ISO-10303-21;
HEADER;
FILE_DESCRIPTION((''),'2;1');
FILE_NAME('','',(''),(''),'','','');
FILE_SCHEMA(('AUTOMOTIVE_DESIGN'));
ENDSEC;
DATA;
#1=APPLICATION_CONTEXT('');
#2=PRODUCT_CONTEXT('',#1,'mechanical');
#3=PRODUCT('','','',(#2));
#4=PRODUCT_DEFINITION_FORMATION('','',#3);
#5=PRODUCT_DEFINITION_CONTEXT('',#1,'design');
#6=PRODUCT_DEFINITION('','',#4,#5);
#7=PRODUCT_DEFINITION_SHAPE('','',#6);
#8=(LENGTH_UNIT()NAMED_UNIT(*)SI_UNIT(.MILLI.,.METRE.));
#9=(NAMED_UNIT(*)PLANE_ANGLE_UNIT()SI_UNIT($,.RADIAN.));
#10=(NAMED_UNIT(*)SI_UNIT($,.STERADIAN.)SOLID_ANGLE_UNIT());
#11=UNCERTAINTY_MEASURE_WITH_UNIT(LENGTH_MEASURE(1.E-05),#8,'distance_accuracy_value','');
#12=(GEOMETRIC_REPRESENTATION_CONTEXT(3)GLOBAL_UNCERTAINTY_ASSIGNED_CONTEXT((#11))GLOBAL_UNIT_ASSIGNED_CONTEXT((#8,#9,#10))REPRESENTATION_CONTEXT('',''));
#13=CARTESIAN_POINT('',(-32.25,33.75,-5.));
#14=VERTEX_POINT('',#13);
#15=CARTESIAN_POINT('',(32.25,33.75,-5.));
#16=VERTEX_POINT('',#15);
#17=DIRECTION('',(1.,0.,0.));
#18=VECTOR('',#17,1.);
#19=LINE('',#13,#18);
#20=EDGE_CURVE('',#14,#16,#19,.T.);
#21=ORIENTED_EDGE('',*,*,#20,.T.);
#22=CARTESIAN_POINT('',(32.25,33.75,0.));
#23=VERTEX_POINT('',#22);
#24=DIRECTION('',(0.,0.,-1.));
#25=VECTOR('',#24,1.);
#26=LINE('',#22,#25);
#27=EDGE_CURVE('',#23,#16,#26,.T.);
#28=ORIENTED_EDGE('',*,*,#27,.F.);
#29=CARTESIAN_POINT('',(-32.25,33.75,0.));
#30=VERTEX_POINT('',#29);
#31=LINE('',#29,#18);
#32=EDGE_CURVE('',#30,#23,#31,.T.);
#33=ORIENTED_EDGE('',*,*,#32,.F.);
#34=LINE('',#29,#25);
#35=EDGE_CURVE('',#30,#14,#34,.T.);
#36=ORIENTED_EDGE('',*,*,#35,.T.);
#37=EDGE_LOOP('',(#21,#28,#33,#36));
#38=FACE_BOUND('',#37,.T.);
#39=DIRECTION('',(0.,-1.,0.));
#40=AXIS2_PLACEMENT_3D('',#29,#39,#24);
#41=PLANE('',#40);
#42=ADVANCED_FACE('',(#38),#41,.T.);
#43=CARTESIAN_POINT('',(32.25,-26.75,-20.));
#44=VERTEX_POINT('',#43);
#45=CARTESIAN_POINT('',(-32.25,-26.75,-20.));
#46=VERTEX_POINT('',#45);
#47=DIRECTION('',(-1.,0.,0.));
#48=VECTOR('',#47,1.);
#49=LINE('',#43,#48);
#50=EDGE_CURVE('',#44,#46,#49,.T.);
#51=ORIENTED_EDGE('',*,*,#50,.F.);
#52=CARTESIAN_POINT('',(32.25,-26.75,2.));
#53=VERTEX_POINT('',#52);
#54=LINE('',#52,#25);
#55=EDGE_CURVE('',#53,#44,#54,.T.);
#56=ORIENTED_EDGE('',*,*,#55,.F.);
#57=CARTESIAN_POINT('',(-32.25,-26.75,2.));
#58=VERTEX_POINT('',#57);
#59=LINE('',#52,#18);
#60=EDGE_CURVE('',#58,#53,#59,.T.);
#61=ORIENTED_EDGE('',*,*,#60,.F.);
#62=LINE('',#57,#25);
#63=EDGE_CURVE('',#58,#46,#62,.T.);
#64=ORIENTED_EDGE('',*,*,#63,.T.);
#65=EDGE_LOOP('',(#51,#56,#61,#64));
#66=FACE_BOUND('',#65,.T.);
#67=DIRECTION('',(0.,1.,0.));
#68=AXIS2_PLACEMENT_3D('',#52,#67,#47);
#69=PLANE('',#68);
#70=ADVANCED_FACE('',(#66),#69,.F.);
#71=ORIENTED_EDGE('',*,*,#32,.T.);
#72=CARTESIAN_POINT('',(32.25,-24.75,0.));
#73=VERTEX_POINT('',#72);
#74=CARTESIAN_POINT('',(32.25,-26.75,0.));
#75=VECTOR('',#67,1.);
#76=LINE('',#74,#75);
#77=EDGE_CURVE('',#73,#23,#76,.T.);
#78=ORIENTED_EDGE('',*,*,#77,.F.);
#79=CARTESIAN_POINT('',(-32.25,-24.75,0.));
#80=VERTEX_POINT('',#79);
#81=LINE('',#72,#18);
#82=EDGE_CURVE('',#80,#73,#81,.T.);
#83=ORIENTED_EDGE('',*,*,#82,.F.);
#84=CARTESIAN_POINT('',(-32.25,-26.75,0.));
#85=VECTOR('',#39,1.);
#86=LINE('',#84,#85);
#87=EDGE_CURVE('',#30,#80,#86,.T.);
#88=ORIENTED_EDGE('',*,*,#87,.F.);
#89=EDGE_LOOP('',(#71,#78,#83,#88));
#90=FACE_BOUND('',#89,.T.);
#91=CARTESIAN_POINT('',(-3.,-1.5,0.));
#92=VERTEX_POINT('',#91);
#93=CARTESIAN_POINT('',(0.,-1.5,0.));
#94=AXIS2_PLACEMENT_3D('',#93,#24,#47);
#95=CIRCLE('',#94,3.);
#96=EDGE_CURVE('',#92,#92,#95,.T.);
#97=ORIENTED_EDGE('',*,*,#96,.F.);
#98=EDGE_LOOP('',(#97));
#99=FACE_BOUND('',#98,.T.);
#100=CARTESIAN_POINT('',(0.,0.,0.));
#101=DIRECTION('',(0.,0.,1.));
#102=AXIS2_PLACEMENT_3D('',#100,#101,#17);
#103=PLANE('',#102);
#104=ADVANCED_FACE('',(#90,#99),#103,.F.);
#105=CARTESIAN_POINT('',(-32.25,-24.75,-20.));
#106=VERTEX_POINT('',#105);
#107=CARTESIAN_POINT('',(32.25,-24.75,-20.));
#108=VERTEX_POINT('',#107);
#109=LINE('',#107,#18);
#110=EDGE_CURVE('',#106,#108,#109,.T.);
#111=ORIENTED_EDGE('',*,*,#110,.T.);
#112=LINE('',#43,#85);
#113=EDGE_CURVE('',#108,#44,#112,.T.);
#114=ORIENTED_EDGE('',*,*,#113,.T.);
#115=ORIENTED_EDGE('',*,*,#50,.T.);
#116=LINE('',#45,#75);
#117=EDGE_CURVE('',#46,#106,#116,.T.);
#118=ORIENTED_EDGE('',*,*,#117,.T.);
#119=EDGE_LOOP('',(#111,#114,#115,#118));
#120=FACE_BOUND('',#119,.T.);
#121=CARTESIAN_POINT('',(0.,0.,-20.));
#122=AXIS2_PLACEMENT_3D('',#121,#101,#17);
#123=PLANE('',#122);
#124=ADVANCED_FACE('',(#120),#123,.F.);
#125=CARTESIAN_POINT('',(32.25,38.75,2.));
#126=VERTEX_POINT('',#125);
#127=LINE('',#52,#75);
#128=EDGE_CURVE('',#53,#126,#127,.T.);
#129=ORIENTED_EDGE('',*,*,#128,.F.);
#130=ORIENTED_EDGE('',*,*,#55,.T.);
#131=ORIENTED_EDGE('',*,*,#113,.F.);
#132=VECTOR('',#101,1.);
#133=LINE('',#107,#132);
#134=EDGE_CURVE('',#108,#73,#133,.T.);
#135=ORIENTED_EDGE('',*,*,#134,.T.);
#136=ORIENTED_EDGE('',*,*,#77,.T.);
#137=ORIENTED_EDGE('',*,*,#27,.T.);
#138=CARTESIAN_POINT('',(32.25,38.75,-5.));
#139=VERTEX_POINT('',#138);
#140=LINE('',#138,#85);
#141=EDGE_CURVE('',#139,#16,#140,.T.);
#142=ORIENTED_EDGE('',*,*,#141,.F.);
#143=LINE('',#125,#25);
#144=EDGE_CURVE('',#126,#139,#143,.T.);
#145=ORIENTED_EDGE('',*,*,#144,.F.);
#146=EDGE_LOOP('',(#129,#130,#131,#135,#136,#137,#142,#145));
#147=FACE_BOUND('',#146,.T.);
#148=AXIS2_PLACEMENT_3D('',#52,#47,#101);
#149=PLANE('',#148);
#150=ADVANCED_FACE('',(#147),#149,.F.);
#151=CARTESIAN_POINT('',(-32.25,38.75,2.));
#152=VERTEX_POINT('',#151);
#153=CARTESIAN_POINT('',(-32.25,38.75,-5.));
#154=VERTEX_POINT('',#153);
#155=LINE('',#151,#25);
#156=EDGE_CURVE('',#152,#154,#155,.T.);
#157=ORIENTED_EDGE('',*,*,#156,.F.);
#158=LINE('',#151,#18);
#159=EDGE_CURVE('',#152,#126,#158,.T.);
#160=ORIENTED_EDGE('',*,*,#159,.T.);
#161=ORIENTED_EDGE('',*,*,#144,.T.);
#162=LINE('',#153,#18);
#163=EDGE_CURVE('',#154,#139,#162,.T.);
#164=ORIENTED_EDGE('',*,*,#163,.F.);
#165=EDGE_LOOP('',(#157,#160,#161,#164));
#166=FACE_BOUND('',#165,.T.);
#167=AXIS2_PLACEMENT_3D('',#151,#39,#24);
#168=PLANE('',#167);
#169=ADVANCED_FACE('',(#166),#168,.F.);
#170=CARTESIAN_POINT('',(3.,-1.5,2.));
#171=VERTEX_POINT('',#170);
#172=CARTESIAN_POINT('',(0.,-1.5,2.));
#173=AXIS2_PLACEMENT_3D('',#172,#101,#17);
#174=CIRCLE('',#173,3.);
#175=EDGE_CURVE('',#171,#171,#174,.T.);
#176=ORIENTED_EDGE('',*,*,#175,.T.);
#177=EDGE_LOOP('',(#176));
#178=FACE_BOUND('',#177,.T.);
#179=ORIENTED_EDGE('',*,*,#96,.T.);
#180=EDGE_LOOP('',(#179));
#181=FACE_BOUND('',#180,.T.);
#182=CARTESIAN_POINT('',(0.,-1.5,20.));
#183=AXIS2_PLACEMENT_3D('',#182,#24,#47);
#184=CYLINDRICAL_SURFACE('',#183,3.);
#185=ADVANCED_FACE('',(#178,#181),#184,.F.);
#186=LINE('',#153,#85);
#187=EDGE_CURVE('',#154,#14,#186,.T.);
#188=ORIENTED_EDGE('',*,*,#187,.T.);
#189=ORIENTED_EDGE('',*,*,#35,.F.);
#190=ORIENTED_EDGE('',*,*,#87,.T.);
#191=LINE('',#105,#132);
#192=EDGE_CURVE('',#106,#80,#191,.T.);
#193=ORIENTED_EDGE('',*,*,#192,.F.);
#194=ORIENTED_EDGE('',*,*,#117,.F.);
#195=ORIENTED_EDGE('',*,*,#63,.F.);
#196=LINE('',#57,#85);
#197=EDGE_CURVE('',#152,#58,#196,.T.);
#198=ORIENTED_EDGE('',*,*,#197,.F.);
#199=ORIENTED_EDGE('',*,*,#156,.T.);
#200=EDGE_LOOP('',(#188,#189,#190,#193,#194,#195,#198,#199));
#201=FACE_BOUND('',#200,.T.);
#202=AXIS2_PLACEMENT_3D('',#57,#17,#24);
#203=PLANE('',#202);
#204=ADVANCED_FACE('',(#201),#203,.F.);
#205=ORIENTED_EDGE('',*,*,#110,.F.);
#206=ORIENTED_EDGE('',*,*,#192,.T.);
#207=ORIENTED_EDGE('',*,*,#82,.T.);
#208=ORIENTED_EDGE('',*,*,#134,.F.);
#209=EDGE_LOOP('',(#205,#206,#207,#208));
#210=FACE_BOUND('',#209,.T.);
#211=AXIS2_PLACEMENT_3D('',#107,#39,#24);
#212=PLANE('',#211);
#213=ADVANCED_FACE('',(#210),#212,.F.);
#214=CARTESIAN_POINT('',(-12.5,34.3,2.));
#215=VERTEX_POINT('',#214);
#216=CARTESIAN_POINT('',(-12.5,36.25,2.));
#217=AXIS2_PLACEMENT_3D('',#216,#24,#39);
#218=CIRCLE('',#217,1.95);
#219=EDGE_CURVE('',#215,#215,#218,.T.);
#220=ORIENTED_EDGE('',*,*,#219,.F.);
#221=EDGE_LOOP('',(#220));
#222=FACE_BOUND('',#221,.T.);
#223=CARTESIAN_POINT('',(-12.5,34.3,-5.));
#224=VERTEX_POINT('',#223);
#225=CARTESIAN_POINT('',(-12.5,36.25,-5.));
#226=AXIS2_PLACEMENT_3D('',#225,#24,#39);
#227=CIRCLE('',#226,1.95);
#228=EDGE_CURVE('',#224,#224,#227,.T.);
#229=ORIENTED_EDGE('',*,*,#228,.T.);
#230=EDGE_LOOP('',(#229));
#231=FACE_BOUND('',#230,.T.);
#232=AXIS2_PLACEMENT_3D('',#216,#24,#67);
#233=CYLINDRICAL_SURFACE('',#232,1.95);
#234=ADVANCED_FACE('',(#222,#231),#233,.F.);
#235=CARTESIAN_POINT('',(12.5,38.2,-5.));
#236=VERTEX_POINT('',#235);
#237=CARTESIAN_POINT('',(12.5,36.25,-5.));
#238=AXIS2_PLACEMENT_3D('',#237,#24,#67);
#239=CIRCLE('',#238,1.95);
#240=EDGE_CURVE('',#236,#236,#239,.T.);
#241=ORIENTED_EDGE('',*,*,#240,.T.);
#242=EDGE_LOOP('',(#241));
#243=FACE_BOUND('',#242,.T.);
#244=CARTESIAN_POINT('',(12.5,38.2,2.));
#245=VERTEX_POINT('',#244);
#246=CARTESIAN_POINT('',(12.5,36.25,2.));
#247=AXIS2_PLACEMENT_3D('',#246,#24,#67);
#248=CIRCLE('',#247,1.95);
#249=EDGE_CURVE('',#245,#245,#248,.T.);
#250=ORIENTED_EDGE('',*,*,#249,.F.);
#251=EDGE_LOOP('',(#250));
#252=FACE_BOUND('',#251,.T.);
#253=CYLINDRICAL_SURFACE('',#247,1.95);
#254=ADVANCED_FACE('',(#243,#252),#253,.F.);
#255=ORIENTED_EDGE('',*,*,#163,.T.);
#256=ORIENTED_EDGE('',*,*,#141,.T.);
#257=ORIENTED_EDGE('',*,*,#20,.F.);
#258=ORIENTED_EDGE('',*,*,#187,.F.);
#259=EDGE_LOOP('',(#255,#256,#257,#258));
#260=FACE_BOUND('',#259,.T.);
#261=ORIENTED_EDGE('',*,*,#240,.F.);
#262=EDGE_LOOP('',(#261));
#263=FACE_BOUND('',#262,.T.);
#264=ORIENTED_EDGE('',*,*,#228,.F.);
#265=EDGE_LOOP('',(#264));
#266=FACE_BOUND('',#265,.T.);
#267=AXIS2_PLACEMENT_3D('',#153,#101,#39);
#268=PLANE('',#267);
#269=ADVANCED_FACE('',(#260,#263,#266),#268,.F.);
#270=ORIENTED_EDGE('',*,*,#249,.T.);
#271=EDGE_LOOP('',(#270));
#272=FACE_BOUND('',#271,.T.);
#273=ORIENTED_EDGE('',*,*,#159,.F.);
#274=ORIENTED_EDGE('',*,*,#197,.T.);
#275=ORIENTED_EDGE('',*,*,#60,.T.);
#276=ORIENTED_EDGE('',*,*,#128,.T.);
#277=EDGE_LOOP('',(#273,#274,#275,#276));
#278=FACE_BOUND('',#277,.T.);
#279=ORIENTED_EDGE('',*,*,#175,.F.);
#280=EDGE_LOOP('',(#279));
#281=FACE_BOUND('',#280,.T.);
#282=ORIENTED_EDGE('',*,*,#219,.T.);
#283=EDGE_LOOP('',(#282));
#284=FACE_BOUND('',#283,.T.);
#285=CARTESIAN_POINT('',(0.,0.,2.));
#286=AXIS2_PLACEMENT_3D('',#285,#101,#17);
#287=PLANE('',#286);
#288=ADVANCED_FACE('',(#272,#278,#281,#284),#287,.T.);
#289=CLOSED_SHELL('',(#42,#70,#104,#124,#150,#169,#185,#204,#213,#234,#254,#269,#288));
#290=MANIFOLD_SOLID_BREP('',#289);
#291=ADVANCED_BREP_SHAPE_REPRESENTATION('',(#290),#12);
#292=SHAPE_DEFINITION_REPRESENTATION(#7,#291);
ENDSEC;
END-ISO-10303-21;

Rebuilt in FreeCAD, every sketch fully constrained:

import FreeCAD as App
import Part
import Sketcher
from FreeCAD import Vector
Q = App.Units.Quantity


def add_polygon(sketch, points):
    """Adds a closed chain of lines whose ends are joined by coincident constraints."""
    first, n = sketch.GeometryCount, len(points)
    for a, b in zip(points, points[1:] + points[:1]):
        sketch.addGeometry(Part.LineSegment(App.Vector(*a, 0), App.Vector(*b, 0)), False)
    for i in range(n):
        sketch.addConstraint(Sketcher.Constraint("Coincident", first + i, 2, first + (i + 1) % n, 1))

doc = App.newDocument("Part")
params = doc.addObject("Spreadsheet::Sheet", "Params")
for row, (alias, value) in enumerate([
    ("sketch1_width", "64.5 mm"),
    ("sketch1_height", "53.5 mm"),
    ("pad1_length", "2 mm"),
    ("sketch2_height", "5 mm"),
    ("sketch2_width", "64.5 mm"),
    ("pad2_length", "5 mm"),
    ("sketch3_height", "2 mm"),
    ("sketch3_width", "64.5 mm"),
    ("pad3_length", "20 mm"),
    ("sketch4_diameter", "6 mm"),
    ("pocket1_length", "20 mm"),
    ("sketch5_height", "5 mm"),
    ("sketch6_width", "10 mm"),
    ("sketch6_width2", "5 mm"),
    ("sketch6_height", "2 mm"),
    ("pad4_length", "64.5 mm"),
    ("sketch7_diameter", "3.9 mm"),
], start=1):
    params.set(f"A{row}", alias)
    params.set(f"B{row}", "=" + value)
    params.setAlias(f"B{row}", alias)

body = doc.addObject("PartDesign::Body", "Body")

# Sketch on XY plane
sketch1 = body.newObject("Sketcher::SketchObject", "Sketch")
sketch1.AttachmentSupport = (doc.getObject("XY_Plane"), [""])
sketch1.MapMode = "FlatFace"
add_polygon(sketch1, [(-32, 27), (-32, -27), (32, -27), (32, 27)])  # lines 0-3
sketch1.addConstraint([
    Sketcher.Constraint("Vertical", 0),
    Sketcher.Constraint("Horizontal", 1),
    Sketcher.Constraint("Vertical", 2),
    Sketcher.Constraint("Horizontal", 3),
    Sketcher.Constraint("Symmetric", 0, 2, 2, 2, -1, 1),
    Sketcher.Constraint("DistanceX", 1, 1, 1, 2, Q("64.5 mm")),
    Sketcher.Constraint("DistanceY", 0, 2, 0, 1, Q("53.5 mm")),
])
sketch1.setExpression("Constraints[9]", "Params.sketch1_width")
sketch1.setExpression("Constraints[10]", "Params.sketch1_height")
pad1 = body.newObject("PartDesign::Pad", "Pad")
pad1.Profile = sketch1
pad1.setExpression("Length", "Params.pad1_length")

# Sketch on XY plane
sketch2 = body.newObject("Sketcher::SketchObject", "Sketch001")
sketch2.AttachmentSupport = (doc.getObject("XY_Plane"), [""])
sketch2.MapMode = "FlatFace"
add_polygon(sketch2, [(32, 27), (32, 22), (-32, 22), (-32, 27)])  # lines 0-3
sketch2.addConstraint([
    Sketcher.Constraint("Vertical", 0),
    Sketcher.Constraint("Horizontal", 1),
    Sketcher.Constraint("Vertical", 2),
    Sketcher.Constraint("Horizontal", 3),
    Sketcher.Constraint("DistanceY", 0, 2, 0, 1, Q("5 mm")),
    Sketcher.Constraint("DistanceX", 1, 2, 1, 1, Q("64.5 mm")),
    Sketcher.Constraint("DistanceX", -1, 1, 0, 2, Q("32.25 mm")),
    Sketcher.Constraint("DistanceY", -1, 1, 0, 2, Q("21.75 mm")),
])
sketch2.setExpression("Constraints[8]", "Params.sketch2_height")
sketch2.setExpression("Constraints[9]", "Params.sketch2_width")
pad2 = body.newObject("PartDesign::Pad", "Pad001")
pad2.Profile = sketch2
pad2.setExpression("Length", "Params.pad2_length")
pad2.Reversed = True

# Sketch on XY plane
sketch3 = body.newObject("Sketcher::SketchObject", "Sketch002")
sketch3.AttachmentSupport = (doc.getObject("XY_Plane"), [""])
sketch3.MapMode = "FlatFace"
add_polygon(sketch3, [(32.2, -24.8), (32.2, -26.8), (-32.2, -26.8), (-32.2, -24.8)])  # lines 0-3
sketch3.addConstraint([
    Sketcher.Constraint("Vertical", 0),
    Sketcher.Constraint("Horizontal", 1),
    Sketcher.Constraint("Vertical", 2),
    Sketcher.Constraint("Horizontal", 3),
    Sketcher.Constraint("DistanceY", 0, 2, 0, 1, Q("2 mm")),
    Sketcher.Constraint("DistanceX", 1, 2, 1, 1, Q("64.5 mm")),
    Sketcher.Constraint("DistanceX", -1, 1, 0, 2, Q("32.25 mm")),
    Sketcher.Constraint("DistanceY", 0, 2, -1, 1, Q("26.75 mm")),
])
sketch3.setExpression("Constraints[8]", "Params.sketch3_height")
sketch3.setExpression("Constraints[9]", "Params.sketch3_width")
pad3 = body.newObject("PartDesign::Pad", "Pad002")
pad3.Profile = sketch3
pad3.setExpression("Length", "Params.pad3_length")
pad3.Reversed = True

# Sketch on XY plane
sketch4 = body.newObject("Sketcher::SketchObject", "Sketch003")
sketch4.AttachmentSupport = (doc.getObject("XY_Plane"), [""])
sketch4.MapMode = "FlatFace"
sketch4.addGeometry(Part.Circle(Vector(0, -1.5, 0), Vector(0, 0, 1), 3), False)
sketch4.addConstraint([
    Sketcher.Constraint("PointOnObject", 0, 3, -2),
    Sketcher.Constraint("Diameter", 0, Q("6 mm")),
    Sketcher.Constraint("DistanceY", 0, 3, -1, 1, Q("1.5 mm")),
])
sketch4.setExpression("Constraints[1]", "Params.sketch4_diameter")
pocket1 = body.newObject("PartDesign::Pocket", "Pocket")
pocket1.Profile = sketch4
pocket1.setExpression("Length", "Params.pocket1_length")
pocket1.Reversed = True

# Sketch on YZ plane
sketch5 = body.newObject("Sketcher::SketchObject", "Sketch004")
sketch5.AttachmentSupport = (doc.getObject("YZ_Plane"), [""])
sketch5.MapMode = "FlatFace"
sketch5.AttachmentOffset = App.Placement(Vector(0, 0, 32.25), App.Rotation())
add_polygon(sketch5, [(27, 0), (21, 0), (21, -5), (27, -5)])  # lines 0-3
sketch5.addConstraint([
    Sketcher.Constraint("Horizontal", 0),
    Sketcher.Constraint("Vertical", 1),
    Sketcher.Constraint("Horizontal", 2),
    Sketcher.Constraint("Vertical", 3),
    Sketcher.Constraint("PointOnObject", 0, 2, -1),
    Sketcher.Constraint("DistanceY", 1, 2, 1, 1, Q("5 mm")),
    Sketcher.Constraint("DistanceX", -1, 1, 2, 2, Q("26.75 mm")),
    Sketcher.Constraint("DistanceX", 0, 2, 0, 1, Q("5.397784 mm")),
])
sketch5.setExpression("Constraints[9]", "Params.sketch5_height")
pocket2 = body.newObject("PartDesign::Pocket", "Pocket001")
pocket2.Profile = sketch5
pocket2.Type = "ThroughAll"

# Sketch on YZ plane
sketch6 = body.newObject("Sketcher::SketchObject", "Sketch005")
sketch6.AttachmentSupport = (doc.getObject("YZ_Plane"), [""])
sketch6.MapMode = "FlatFace"
sketch6.AttachmentOffset = App.Placement(Vector(0, 0, 32.25), App.Rotation())
add_polygon(sketch6, [(23.8, 2), (23.8, 0), (33.8, 0), (33.8, -5), (38.8, -5), (38.8, 2)])  # lines 0-5
sketch6.addConstraint([
    Sketcher.Constraint("Vertical", 0),
    Sketcher.Constraint("Horizontal", 1),
    Sketcher.Constraint("Vertical", 2),
    Sketcher.Constraint("Horizontal", 3),
    Sketcher.Constraint("Vertical", 4),
    Sketcher.Constraint("Horizontal", 5),
    Sketcher.Constraint("PointOnObject", 0, 2, -1),
    Sketcher.Constraint("Equal", 3, 2),
    Sketcher.Constraint("DistanceX", 1, 1, 1, 2, Q("10 mm")),
    Sketcher.Constraint("DistanceX", 3, 1, 3, 2, Q("5 mm")),
    Sketcher.Constraint("DistanceY", 0, 2, 0, 1, Q("2 mm")),
    Sketcher.Constraint("DistanceX", -1, 1, 0, 2, Q("23.75 mm")),
])
sketch6.setExpression("Constraints[14]", "Params.sketch6_width")
sketch6.setExpression("Constraints[15]", "Params.sketch6_width2")
sketch6.setExpression("Constraints[16]", "Params.sketch6_height")
pad4 = body.newObject("PartDesign::Pad", "Pad003")
pad4.Profile = sketch6
pad4.setExpression("Length", "Params.pad4_length")
pad4.Reversed = True

# Sketch on XY plane
sketch7 = body.newObject("Sketcher::SketchObject", "Sketch006")
sketch7.AttachmentSupport = (doc.getObject("XY_Plane"), [""])
sketch7.MapMode = "FlatFace"
sketch7.AttachmentOffset = App.Placement(Vector(0, 0, -5), App.Rotation())
sketch7.addGeometry([
    Part.Circle(Vector(12.5, 36.2, 0), Vector(0, 0, 1), 1.9),
    Part.Circle(Vector(-12.5, 36.2, 0), Vector(0, 0, 1), 1.9),
], False)
sketch7.addConstraint([
    Sketcher.Constraint("Equal", 0, 1),
    Sketcher.Constraint("Symmetric", 0, 3, 1, 3, -2),
    Sketcher.Constraint("Diameter", 0, Q("3.9 mm")),
    Sketcher.Constraint("DistanceX", 1, 3, 0, 3, Q("25 mm")),
    Sketcher.Constraint("DistanceY", -1, 1, 0, 3, Q("36.25 mm")),
])
sketch7.setExpression("Constraints[2]", "Params.sketch7_diameter")
pocket3 = body.newObject("PartDesign::Pocket", "Pocket002")
pocket3.Profile = sketch7
pocket3.Type = "ThroughAll"
pocket3.Reversed = True

doc.recompute()
